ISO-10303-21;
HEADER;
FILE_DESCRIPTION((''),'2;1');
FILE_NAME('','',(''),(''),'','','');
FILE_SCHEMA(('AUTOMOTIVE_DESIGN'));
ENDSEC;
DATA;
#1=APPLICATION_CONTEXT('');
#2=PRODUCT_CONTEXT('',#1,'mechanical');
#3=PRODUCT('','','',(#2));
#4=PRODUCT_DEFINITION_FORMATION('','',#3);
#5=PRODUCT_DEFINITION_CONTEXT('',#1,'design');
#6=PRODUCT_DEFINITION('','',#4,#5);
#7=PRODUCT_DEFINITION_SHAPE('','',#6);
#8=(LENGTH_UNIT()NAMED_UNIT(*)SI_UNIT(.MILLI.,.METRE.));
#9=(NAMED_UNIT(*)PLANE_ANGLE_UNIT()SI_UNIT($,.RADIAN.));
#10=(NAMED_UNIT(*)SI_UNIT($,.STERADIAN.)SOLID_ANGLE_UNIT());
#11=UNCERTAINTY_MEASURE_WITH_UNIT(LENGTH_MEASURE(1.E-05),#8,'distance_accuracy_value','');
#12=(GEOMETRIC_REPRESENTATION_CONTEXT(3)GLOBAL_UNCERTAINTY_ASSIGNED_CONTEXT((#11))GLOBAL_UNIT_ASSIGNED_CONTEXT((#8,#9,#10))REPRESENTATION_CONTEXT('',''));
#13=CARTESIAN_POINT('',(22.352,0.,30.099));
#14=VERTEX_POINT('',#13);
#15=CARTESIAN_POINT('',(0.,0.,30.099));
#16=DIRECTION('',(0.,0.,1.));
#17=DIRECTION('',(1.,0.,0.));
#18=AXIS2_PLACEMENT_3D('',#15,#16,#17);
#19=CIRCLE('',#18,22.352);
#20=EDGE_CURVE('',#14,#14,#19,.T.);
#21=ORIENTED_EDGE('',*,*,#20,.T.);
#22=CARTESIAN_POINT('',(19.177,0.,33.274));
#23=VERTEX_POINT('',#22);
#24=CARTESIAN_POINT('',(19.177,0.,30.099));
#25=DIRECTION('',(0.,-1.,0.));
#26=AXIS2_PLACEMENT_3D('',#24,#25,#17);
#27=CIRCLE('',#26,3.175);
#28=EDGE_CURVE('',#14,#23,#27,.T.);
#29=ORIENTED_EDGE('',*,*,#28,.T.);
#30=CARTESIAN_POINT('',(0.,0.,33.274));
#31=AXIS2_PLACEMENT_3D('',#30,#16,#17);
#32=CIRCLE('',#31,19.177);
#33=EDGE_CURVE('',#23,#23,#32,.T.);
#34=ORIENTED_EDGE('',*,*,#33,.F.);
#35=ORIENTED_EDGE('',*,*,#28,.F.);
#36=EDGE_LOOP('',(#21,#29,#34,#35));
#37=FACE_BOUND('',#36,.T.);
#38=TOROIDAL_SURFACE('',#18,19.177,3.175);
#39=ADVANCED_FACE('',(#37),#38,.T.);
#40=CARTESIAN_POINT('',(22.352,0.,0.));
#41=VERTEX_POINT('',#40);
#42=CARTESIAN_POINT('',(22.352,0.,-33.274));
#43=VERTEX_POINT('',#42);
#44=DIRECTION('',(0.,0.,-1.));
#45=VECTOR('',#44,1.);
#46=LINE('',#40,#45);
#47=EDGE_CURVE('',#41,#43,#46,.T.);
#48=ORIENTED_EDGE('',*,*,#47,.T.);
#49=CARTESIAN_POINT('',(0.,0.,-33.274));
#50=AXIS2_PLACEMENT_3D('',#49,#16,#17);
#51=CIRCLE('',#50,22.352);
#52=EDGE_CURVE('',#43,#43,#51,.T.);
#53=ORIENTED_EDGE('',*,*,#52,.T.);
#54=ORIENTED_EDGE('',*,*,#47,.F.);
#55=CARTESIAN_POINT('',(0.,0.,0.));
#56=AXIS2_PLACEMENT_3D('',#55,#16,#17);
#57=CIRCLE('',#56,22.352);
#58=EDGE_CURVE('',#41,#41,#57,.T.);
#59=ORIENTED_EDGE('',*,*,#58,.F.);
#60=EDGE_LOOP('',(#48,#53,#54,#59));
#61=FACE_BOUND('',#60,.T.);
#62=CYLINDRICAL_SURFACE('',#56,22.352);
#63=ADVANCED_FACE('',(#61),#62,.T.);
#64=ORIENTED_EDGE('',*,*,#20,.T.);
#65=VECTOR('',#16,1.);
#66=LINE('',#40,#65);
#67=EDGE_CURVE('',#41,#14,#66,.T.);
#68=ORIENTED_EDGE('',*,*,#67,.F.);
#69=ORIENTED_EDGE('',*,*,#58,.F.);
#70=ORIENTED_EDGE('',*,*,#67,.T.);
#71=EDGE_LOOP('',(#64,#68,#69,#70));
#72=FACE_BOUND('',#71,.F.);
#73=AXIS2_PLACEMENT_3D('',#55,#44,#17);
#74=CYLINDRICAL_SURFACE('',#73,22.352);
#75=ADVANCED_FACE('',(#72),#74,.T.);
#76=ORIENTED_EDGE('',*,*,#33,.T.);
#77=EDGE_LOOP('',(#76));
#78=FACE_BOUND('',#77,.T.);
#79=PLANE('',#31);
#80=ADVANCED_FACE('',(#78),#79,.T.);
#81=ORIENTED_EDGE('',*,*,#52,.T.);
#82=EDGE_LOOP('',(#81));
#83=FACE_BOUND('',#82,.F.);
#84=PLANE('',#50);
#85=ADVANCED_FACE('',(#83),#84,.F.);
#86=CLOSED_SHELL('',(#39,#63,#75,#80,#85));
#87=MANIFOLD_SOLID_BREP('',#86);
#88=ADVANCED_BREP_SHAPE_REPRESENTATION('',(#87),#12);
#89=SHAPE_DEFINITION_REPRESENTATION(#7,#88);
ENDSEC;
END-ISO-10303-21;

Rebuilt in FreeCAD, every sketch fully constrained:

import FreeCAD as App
import Part
import Sketcher
Q = App.Units.Quantity


def edges_at(feature, points):
    """Names of the edges that pass closest to the given points."""
    edges = feature.Shape.Edges
    near = lambda p: min(range(len(edges)), key=lambda i: edges[i].distToShape(Part.Vertex(*p))[0])
    return sorted({f"Edge{near(p) + 1}" for p in points})

doc = App.newDocument("Part")
body = doc.addObject("PartDesign::Body", "Body")

sketch1 = body.newObject("Sketcher::SketchObject", "Sketch")
sketch1.AttachmentSupport = (doc.getObject("XY_Plane"), [""])
sketch1.MapMode = "FlatFace"
sketch1.addGeometry(Part.Circle(App.Vector(0, 0, 0), App.Vector(0, 0, 1), 22.352), False)
sketch1.addConstraint([
    Sketcher.Constraint("Coincident", 0, 3, -1, 1),
    Sketcher.Constraint("Diameter", 0, Q("1.76 in")),
])
pad1 = body.newObject("PartDesign::Pad", "Pad")
pad1.Profile = sketch1
pad1.Length = Q("2.62 in")
pad1.Midplane = True
doc.recompute()

fillet = body.newObject("PartDesign::Fillet", "Fillet")
fillet.Base = (pad1, edges_at(pad1, [(-22.352, 0, 33.274)]))
fillet.Radius = Q("0.125 in")

doc.recompute()
